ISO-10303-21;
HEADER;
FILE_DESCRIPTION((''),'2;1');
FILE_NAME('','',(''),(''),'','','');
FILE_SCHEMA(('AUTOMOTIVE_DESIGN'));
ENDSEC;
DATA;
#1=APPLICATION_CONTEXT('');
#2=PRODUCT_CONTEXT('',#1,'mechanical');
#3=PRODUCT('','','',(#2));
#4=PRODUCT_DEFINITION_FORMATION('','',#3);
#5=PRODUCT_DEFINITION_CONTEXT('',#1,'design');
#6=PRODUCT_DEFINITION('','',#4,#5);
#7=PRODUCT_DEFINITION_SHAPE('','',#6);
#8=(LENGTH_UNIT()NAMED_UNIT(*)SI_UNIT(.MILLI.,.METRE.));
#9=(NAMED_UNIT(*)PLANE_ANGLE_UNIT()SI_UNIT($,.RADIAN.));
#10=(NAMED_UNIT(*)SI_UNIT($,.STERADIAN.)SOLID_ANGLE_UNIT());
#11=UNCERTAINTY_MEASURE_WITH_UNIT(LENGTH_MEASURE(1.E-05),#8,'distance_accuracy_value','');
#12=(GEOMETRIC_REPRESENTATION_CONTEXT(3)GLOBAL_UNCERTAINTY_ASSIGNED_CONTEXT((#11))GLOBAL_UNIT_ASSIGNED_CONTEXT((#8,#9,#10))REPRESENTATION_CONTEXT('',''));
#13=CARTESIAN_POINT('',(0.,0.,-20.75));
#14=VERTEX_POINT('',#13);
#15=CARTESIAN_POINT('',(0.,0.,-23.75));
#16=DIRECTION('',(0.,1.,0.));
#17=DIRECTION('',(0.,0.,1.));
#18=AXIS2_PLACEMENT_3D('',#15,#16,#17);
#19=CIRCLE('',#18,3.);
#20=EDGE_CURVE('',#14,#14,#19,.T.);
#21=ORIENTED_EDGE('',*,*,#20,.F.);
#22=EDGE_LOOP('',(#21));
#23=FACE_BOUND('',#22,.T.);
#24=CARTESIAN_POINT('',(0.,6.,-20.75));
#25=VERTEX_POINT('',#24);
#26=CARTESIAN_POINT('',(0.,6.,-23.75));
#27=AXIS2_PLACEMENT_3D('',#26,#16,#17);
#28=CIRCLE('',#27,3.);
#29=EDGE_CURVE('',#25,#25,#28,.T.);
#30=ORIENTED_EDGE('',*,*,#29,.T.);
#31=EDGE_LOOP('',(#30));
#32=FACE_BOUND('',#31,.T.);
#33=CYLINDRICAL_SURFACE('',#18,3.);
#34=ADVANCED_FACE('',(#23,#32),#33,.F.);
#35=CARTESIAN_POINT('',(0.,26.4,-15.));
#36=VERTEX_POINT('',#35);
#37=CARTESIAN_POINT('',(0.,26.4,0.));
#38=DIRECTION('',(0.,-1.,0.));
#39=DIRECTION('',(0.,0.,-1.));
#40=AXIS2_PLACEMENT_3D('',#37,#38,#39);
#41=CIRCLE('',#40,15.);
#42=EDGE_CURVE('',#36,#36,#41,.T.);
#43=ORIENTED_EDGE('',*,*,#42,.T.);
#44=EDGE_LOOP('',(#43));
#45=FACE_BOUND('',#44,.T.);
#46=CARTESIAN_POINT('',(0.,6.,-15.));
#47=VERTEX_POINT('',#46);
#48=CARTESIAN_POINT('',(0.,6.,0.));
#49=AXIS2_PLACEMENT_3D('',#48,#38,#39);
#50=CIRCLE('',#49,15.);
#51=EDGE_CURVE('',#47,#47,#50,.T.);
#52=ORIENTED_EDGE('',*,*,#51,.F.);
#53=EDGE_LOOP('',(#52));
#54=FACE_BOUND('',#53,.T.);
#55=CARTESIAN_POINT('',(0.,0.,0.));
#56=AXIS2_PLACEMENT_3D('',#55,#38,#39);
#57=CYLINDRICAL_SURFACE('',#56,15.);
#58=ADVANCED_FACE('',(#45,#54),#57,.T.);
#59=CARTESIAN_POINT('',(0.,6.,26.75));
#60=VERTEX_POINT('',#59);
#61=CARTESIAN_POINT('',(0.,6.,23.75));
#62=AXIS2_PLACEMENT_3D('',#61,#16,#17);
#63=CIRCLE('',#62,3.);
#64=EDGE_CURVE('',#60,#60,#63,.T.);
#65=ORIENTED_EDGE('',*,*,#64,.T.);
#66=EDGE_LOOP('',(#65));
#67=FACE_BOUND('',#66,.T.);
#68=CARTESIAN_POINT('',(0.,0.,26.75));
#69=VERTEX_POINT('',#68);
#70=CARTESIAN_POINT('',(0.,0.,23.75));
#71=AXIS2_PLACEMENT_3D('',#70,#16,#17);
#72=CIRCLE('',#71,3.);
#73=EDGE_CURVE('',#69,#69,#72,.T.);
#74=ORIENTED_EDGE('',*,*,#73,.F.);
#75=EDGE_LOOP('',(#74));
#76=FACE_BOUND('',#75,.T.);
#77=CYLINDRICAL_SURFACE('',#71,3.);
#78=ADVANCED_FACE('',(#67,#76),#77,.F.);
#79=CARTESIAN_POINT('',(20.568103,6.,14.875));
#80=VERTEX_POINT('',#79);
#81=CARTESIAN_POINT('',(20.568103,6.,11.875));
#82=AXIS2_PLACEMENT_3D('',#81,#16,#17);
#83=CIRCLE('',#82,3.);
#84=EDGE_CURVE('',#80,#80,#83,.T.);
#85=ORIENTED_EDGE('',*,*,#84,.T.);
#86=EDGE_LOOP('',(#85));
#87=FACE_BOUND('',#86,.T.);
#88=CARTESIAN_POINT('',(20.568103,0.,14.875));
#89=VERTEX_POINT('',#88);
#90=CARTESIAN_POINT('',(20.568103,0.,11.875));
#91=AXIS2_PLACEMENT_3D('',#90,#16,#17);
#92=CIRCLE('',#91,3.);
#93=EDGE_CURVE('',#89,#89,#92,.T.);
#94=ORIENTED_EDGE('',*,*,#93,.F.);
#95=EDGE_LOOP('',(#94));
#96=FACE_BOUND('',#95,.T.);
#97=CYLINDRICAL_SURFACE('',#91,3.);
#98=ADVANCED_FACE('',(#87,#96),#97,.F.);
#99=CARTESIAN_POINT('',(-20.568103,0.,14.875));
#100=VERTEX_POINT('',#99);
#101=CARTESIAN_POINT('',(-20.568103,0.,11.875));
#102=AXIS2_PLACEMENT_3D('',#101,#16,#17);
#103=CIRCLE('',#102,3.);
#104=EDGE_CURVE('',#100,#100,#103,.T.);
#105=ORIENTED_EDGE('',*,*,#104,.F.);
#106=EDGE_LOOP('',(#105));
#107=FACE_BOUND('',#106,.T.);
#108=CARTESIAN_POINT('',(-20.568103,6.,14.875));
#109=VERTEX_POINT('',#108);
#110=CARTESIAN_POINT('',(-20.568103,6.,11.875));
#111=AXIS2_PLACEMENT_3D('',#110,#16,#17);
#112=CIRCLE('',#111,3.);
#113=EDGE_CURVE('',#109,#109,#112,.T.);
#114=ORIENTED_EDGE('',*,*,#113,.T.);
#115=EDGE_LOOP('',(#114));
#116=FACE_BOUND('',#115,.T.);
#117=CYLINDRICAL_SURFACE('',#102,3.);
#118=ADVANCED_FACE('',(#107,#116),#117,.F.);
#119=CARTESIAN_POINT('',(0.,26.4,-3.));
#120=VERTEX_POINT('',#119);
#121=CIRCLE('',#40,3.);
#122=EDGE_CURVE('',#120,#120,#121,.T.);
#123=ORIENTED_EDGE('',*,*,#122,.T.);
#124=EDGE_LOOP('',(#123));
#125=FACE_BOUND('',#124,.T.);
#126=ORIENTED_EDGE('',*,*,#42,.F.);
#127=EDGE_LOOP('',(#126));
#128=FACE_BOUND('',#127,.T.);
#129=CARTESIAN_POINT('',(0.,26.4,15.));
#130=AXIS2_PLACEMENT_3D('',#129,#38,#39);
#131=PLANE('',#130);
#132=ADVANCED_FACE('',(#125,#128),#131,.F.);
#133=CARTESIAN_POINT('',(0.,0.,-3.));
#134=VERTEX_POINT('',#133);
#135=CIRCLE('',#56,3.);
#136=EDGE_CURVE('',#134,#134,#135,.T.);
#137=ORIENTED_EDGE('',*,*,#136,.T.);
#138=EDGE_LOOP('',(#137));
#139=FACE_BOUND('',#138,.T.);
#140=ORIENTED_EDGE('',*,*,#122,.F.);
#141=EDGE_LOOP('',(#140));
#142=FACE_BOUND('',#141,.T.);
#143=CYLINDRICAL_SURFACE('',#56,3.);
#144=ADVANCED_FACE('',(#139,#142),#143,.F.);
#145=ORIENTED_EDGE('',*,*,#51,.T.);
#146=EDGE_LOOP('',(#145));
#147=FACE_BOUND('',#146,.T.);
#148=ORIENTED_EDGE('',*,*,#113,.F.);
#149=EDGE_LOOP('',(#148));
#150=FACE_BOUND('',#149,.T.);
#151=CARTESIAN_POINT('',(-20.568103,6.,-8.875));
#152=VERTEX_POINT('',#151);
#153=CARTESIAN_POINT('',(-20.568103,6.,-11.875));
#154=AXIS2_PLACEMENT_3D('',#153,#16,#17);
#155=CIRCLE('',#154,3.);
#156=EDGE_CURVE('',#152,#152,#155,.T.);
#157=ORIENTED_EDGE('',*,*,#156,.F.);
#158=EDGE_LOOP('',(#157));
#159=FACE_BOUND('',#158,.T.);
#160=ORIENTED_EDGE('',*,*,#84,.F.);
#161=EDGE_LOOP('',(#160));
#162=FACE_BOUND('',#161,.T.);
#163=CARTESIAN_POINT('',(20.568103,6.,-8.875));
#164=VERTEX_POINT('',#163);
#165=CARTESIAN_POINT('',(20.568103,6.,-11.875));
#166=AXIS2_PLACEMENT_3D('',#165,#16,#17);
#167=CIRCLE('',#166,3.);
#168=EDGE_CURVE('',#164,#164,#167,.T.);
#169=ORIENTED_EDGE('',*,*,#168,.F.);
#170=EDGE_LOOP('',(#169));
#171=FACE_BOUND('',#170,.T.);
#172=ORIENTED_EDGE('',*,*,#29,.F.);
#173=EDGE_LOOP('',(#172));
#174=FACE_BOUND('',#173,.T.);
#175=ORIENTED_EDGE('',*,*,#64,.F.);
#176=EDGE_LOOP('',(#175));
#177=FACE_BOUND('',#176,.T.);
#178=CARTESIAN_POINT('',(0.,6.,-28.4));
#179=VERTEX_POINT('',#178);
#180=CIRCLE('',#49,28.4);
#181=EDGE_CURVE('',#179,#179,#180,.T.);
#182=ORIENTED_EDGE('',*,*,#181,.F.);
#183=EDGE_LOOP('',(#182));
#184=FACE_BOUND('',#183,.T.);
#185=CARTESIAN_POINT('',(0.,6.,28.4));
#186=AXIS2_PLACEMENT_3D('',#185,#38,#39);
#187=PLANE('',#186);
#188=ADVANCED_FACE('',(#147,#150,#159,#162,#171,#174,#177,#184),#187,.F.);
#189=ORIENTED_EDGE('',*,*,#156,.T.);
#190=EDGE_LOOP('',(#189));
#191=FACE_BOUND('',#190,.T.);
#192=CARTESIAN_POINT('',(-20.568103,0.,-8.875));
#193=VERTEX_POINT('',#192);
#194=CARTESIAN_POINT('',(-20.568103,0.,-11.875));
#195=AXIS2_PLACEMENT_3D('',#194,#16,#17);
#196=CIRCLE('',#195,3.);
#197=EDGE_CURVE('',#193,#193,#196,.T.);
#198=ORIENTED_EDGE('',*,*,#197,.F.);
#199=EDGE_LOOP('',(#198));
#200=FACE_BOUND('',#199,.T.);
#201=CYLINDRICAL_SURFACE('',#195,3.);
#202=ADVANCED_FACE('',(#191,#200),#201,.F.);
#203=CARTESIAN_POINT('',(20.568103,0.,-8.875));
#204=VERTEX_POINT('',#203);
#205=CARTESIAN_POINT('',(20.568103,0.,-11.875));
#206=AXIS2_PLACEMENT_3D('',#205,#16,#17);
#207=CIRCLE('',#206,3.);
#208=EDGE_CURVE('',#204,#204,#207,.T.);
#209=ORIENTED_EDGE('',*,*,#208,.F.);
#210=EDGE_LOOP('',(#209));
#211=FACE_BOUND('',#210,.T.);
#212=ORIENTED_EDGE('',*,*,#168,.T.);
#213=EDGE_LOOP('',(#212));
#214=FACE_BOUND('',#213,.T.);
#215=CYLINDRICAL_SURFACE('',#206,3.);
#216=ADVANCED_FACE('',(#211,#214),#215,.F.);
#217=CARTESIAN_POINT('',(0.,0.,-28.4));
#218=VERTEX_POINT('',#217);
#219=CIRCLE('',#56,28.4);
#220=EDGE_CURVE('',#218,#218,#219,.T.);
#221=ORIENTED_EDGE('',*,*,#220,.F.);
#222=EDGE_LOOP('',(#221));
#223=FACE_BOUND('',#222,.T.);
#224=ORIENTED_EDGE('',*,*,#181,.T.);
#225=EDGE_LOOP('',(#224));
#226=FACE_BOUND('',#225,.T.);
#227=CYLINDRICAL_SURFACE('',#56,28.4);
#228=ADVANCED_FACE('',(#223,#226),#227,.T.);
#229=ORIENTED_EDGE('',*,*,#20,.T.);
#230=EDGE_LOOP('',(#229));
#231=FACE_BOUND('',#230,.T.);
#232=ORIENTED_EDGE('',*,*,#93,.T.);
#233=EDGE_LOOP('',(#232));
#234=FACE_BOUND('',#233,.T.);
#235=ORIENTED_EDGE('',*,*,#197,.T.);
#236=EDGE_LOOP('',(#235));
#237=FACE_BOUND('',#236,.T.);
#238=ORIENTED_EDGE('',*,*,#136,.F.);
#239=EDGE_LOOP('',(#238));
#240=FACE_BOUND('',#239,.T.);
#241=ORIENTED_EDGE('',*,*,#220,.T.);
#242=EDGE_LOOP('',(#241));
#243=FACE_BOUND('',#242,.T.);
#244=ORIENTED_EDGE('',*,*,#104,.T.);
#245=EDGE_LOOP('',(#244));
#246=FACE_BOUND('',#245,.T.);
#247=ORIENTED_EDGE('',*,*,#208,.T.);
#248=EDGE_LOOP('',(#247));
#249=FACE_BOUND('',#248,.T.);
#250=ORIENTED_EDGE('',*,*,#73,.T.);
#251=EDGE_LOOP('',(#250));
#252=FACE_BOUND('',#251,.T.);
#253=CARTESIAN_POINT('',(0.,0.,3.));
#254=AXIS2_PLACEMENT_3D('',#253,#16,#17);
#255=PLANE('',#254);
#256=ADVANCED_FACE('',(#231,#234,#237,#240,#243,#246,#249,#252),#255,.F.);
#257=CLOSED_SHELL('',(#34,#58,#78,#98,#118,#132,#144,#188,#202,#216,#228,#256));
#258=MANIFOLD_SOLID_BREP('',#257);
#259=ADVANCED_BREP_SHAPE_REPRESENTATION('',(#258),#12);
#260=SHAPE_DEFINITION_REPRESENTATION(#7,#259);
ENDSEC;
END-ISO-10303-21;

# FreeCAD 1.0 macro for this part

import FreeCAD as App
import Part
import Sketcher
Q = App.Units.Quantity


def add_polygon(sketch, points):
    """Adds a closed chain of lines whose ends are joined by coincident constraints."""
    first, n = sketch.GeometryCount, len(points)
    for a, b in zip(points, points[1:] + points[:1]):
        sketch.addGeometry(Part.LineSegment(App.Vector(*a, 0), App.Vector(*b, 0)), False)
    for i in range(n):
        sketch.addConstraint(Sketcher.Constraint("Coincident", first + i, 2, first + (i + 1) % n, 1))

doc = App.newDocument("Part")
body = doc.addObject("PartDesign::Body", "Body")

# Sketch on YZ plane
sketch1 = doc.addObject("Sketcher::SketchObject", "Sketch")
body.addObject(sketch1)
sketch1.AttachmentSupport = (doc.YZ_Plane, [""])
sketch1.MapMode = "FlatFace"
add_polygon(sketch1, [(0, 28.4), (0, 3), (26.4, 3), (26.4, 15), (6, 15), (6, 28.4)])  # lines 0-5
sketch1.addConstraint(Sketcher.Constraint("Vertical", 0))
sketch1.addConstraint(Sketcher.Constraint("Horizontal", 1))
sketch1.addConstraint(Sketcher.Constraint("Vertical", 2))
sketch1.addConstraint(Sketcher.Constraint("Horizontal", 3))
sketch1.addConstraint(Sketcher.Constraint("Vertical", 4))
sketch1.addConstraint(Sketcher.Constraint("Horizontal", 5))
sketch1.addConstraint(Sketcher.Constraint("PointOnObject", 0, 2, -2))
sketch1.addConstraint(Sketcher.Constraint("DistanceX", 5, 2, 5, 1, Q("6 mm")))
sketch1.addConstraint(Sketcher.Constraint("DistanceY", 2, 1, 2, 2, Q("12 mm")))
sketch1.addConstraint(Sketcher.Constraint("DistanceX", 1, 1, 1, 2, Q("26.4 mm")))
sketch1.addConstraint(Sketcher.Constraint("DistanceY", 0, 2, 0, 1, Q("25.4 mm")))
sketch1.addConstraint(Sketcher.Constraint("DistanceY", -1, 1, 0, 2, Q("3 mm")))
revolution = doc.addObject("PartDesign::Revolution", "Revolution")
body.addObject(revolution)
revolution.Profile = sketch1
revolution.ReferenceAxis = (sketch1, ["H_Axis"])
revolution.Angle = 360

# Sketch on XZ plane
sketch2 = doc.addObject("Sketcher::SketchObject", "Sketch001")
body.addObject(sketch2)
sketch2.AttachmentSupport = (doc.XZ_Plane, [""])
sketch2.MapMode = "FlatFace"
sketch2.AttachmentOffset = App.Placement(App.Vector(0, 0, -6), App.Rotation())
sketch2.addGeometry(Part.Circle(App.Vector(0, -23.75, 0), App.Vector(0, 0, 1), 3), False)
sketch2.addGeometry(Part.Circle(App.Vector(20.568103, -11.875, 0), App.Vector(0, 0, 1), 3), False)
sketch2.addGeometry(Part.Circle(App.Vector(20.568103, 11.875, 0), App.Vector(0, 0, 1), 3), False)
sketch2.addGeometry(Part.Circle(App.Vector(0, 23.75, 0), App.Vector(0, 0, 1), 3), False)
sketch2.addGeometry(Part.Circle(App.Vector(-20.568103, 11.875, 0), App.Vector(0, 0, 1), 3), False)
sketch2.addGeometry(Part.Circle(App.Vector(-20.568103, -11.875, 0), App.Vector(0, 0, 1), 3), False)
sketch2.addConstraint(Sketcher.Constraint("Equal", 0, 1))
sketch2.addConstraint(Sketcher.Constraint("Equal", 1, 2))
sketch2.addConstraint(Sketcher.Constraint("Equal", 2, 3))
sketch2.addConstraint(Sketcher.Constraint("Equal", 3, 4))
sketch2.addConstraint(Sketcher.Constraint("Equal", 4, 5))
sketch2.addConstraint(Sketcher.Constraint("Symmetric", 0, 3, 3, 3, -1, 1))
sketch2.addConstraint(Sketcher.Constraint("Symmetric", 1, 3, 4, 3, -1, 1))
sketch2.addConstraint(Sketcher.Constraint("Symmetric", 2, 3, 5, 3, -1, 1))
sketch2.addConstraint(Sketcher.Constraint("Symmetric", 2, 3, 4, 3, -2))
sketch2.addConstraint(Sketcher.Constraint("PointOnObject", 0, 3, -2))
sketch2.addConstraint(Sketcher.Constraint("Diameter", 0, Q("6 mm")))
sketch2.addConstraint(Sketcher.Constraint("DistanceY", 0, 3, 3, 3, Q("47.5 mm")))
sketch2.addConstraint(Sketcher.Constraint("DistanceY", 1, 3, 2, 3, Q("23.75 mm")))
sketch2.addConstraint(Sketcher.Constraint("DistanceX", -1, 1, 1, 3, Q("20.568103 mm")))
pocket1 = doc.addObject("PartDesign::Pocket", "Pocket")
body.addObject(pocket1)
pocket1.Profile = sketch2
pocket1.Type = "ThroughAll"
pocket1.Reversed = True

doc.recompute()
